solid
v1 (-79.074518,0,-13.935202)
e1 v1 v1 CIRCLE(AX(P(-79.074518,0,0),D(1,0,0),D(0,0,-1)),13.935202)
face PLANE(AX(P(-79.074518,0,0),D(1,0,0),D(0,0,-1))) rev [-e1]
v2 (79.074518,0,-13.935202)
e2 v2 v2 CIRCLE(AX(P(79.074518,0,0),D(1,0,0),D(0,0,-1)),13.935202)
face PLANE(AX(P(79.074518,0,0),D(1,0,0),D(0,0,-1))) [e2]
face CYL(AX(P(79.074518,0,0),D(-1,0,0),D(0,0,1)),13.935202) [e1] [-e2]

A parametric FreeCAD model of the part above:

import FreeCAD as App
import Part
import Sketcher

doc = App.newDocument("Part")
body = doc.addObject("PartDesign::Body", "Body")

sketch1 = body.newObject("Sketcher::SketchObject", "Sketch")
sketch1.AttachmentSupport = (doc.getObject("YZ_Plane"), [""])
sketch1.MapMode = "FlatFace"
sketch1.addGeometry(Part.Circle(App.Vector(0, 0, 0), App.Vector(0, 0, 1), 14), False)
sketch1.addConstraint([
    Sketcher.Constraint("Coincident", 0, 3, -1, 1),
    Sketcher.Constraint("Diameter", 0, 27.870404),
])
pad1 = body.newObject("PartDesign::Pad", "Pad")
pad1.Profile = sketch1
pad1.Type = "TwoLengths"
pad1.Length = 79.074518
pad1.Length2 = 79.074518

doc.recompute()
